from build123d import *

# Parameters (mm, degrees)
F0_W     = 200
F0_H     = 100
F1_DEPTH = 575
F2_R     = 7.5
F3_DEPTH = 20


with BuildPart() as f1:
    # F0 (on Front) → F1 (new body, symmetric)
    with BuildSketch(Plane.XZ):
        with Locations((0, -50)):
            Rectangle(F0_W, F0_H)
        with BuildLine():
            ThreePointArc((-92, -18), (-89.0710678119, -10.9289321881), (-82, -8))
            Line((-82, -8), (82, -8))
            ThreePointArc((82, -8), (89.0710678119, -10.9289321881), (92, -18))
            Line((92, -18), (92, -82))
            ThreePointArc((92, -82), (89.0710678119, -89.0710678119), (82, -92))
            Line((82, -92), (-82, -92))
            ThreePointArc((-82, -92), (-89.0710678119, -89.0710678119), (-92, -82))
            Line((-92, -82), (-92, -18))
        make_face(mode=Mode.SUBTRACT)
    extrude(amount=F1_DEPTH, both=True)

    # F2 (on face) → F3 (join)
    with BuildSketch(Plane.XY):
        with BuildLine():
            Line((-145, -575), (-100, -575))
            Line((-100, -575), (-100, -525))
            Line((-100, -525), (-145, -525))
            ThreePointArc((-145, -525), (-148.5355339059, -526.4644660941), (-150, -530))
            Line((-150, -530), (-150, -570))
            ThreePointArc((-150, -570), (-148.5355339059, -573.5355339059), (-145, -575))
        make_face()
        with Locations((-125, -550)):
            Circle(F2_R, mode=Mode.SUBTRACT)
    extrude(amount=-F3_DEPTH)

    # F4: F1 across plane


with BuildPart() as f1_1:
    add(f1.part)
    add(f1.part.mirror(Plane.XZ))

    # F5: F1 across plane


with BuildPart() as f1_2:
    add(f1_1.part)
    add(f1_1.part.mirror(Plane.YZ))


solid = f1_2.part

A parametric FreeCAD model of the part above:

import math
import FreeCAD as App
import Part
import Sketcher
from FreeCAD import Vector


def add_polygon(sketch, points):
    """Adds a closed chain of lines whose ends are joined by coincident constraints."""
    first, n = sketch.GeometryCount, len(points)
    for a, b in zip(points, points[1:] + points[:1]):
        sketch.addGeometry(Part.LineSegment(App.Vector(*a, 0), App.Vector(*b, 0)), False)
    for i in range(n):
        sketch.addConstraint(Sketcher.Constraint("Coincident", first + i, 2, first + (i + 1) % n, 1))

doc = App.newDocument("Part")
body = doc.addObject("PartDesign::Body", "Body")

# Sketch on XZ plane
sketch1 = body.newObject("Sketcher::SketchObject", "Sketch")
sketch1.AttachmentSupport = (doc.getObject("XZ_Plane"), [""])
sketch1.MapMode = "FlatFace"
add_polygon(sketch1, [(-100, 0), (-100, -100), (100, -100), (100, 0)])  # lines 0-3
sketch1.addGeometry(Part.LineSegment(Vector(-92, -82, 0), Vector(-92, -18, 0)), False)  # 4
sketch1.addGeometry(Part.ArcOfCircle(Part.Circle(Vector(-82, -18, 0), Vector(0, 0, 1), 10), math.radians(90), math.radians(180)), False)  # 5
sketch1.addGeometry(Part.LineSegment(Vector(-82, -8, 0), Vector(82, -8, 0)), False)  # 6
sketch1.addGeometry(Part.ArcOfCircle(Part.Circle(Vector(82, -18, 0), Vector(0, 0, 1), 10), math.radians(0), math.radians(90)), False)  # 7
sketch1.addGeometry(Part.LineSegment(Vector(92, -18, 0), Vector(92, -82, 0)), False)  # 8
sketch1.addGeometry(Part.ArcOfCircle(Part.Circle(Vector(82, -82, 0), Vector(0, 0, 1), 10), math.radians(-90), math.radians(0)), False)  # 9
sketch1.addGeometry(Part.LineSegment(Vector(82, -92, 0), Vector(-82, -92, 0)), False)  # 10
sketch1.addGeometry(Part.ArcOfCircle(Part.Circle(Vector(-82, -82, 0), Vector(0, 0, 1), 10), math.radians(180), math.radians(270)), False)  # 11
sketch1.addConstraint(Sketcher.Constraint("Tangent", 4, 2, 5, 2))
sketch1.addConstraint(Sketcher.Constraint("Tangent", 5, 1, 6, 1))
sketch1.addConstraint(Sketcher.Constraint("Tangent", 6, 2, 7, 2))
sketch1.addConstraint(Sketcher.Constraint("Tangent", 7, 1, 8, 1))
sketch1.addConstraint(Sketcher.Constraint("Tangent", 8, 2, 9, 2))
sketch1.addConstraint(Sketcher.Constraint("Tangent", 9, 1, 10, 1))
sketch1.addConstraint(Sketcher.Constraint("Tangent", 10, 2, 11, 2))
sketch1.addConstraint(Sketcher.Constraint("Tangent", 11, 1, 4, 1))
sketch1.addConstraint(Sketcher.Constraint("Vertical", 0))
sketch1.addConstraint(Sketcher.Constraint("Horizontal", 1))
sketch1.addConstraint(Sketcher.Constraint("Vertical", 2))
sketch1.addConstraint(Sketcher.Constraint("Horizontal", 3))
sketch1.addConstraint(Sketcher.Constraint("Vertical", 4))
sketch1.addConstraint(Sketcher.Constraint("Horizontal", 6))
sketch1.addConstraint(Sketcher.Constraint("Vertical", 8))
sketch1.addConstraint(Sketcher.Constraint("Horizontal", 10))
sketch1.addConstraint(Sketcher.Constraint("Equal", 5, 7))
sketch1.addConstraint(Sketcher.Constraint("Equal", 7, 9))
sketch1.addConstraint(Sketcher.Constraint("Equal", 9, 11))
sketch1.addConstraint(Sketcher.Constraint("Symmetric", 2, 2, 3, 2, -1, 1))
sketch1.addConstraint(Sketcher.Constraint("Radius", 5, 10.0))
sketch1.addConstraint(Sketcher.Constraint("DistanceX", 1, 1, 1, 2, 200.0))
sketch1.addConstraint(Sketcher.Constraint("DistanceX", 6, 1, 6, 2, 164.0))
sketch1.addConstraint(Sketcher.Constraint("DistanceY", 0, 2, 0, 1, 100.0))
sketch1.addConstraint(Sketcher.Constraint("DistanceY", 4, 1, 4, 2, 64.0))
sketch1.addConstraint(Sketcher.Constraint("DistanceX", 5, 3, -1, 1, 82.0))
sketch1.addConstraint(Sketcher.Constraint("DistanceY", 5, 3, -1, 1, 18.0))
pad1 = body.newObject("PartDesign::Pad", "Pad")
pad1.Profile = sketch1
pad1.Length = 1150
pad1.Midplane = True

# Sketch on XY plane
sketch2 = body.newObject("Sketcher::SketchObject", "Sketch001")
sketch2.AttachmentSupport = (doc.getObject("XY_Plane"), [""])
sketch2.MapMode = "FlatFace"
sketch2.addGeometry(Part.LineSegment(Vector(-145, -575, 0), Vector(-100, -575, 0)), False)
sketch2.addGeometry(Part.LineSegment(Vector(-100, -575, 0), Vector(-100, -525, 0)), False)
sketch2.addGeometry(Part.LineSegment(Vector(-100, -525, 0), Vector(-145, -525, 0)), False)
sketch2.addGeometry(Part.ArcOfCircle(Part.Circle(Vector(-145, -530, 0), Vector(0, 0, 1), 5), math.radians(90), math.radians(180)), False)
sketch2.addGeometry(Part.LineSegment(Vector(-150, -530, 0), Vector(-150, -570, 0)), False)
sketch2.addGeometry(Part.ArcOfCircle(Part.Circle(Vector(-145, -570, 0), Vector(0, 0, 1), 5), math.radians(180), math.radians(270)), False)
sketch2.addGeometry(Part.Circle(Vector(-125, -550, 0), Vector(0, 0, 1), 8), False)
sketch2.addConstraint(Sketcher.Constraint("Coincident", 0, 2, 1, 1))
sketch2.addConstraint(Sketcher.Constraint("Coincident", 1, 2, 2, 1))
sketch2.addConstraint(Sketcher.Constraint("Tangent", 2, 2, 3, 1))
sketch2.addConstraint(Sketcher.Constraint("Tangent", 3, 2, 4, 1))
sketch2.addConstraint(Sketcher.Constraint("Tangent", 4, 2, 5, 1))
sketch2.addConstraint(Sketcher.Constraint("Tangent", 5, 2, 0, 1))
sketch2.addConstraint(Sketcher.Constraint("Horizontal", 0))
sketch2.addConstraint(Sketcher.Constraint("Vertical", 1))
sketch2.addConstraint(Sketcher.Constraint("Horizontal", 2))
sketch2.addConstraint(Sketcher.Constraint("Vertical", 4))
sketch2.addConstraint(Sketcher.Constraint("Equal", 3, 5))
sketch2.addConstraint(Sketcher.Constraint("Diameter", 6, 15.0))
sketch2.addConstraint(Sketcher.Constraint("Radius", 3, 5.0))
sketch2.addConstraint(Sketcher.Constraint("DistanceX", 0, 1, 0, 2, 45.0))
sketch2.addConstraint(Sketcher.Constraint("DistanceY", 1, 1, 1, 2, 50.0))
sketch2.addConstraint(Sketcher.Constraint("DistanceX", 3, 3, -1, 1, 145.0))
sketch2.addConstraint(Sketcher.Constraint("DistanceY", 3, 3, -1, 1, 530.0))
sketch2.addConstraint(Sketcher.Constraint("DistanceX", 6, 3, -1, 1, 125.0))
sketch2.addConstraint(Sketcher.Constraint("DistanceY", 6, 3, -1, 1, 550.0))
pad2 = body.newObject("PartDesign::Pad", "Pad001")
pad2.Profile = sketch2
pad2.Length = 20
pad2.Reversed = True
body2 = doc.addObject("PartDesign::Body", "Body001")
doc.recompute()

body2.BaseFeature = body
doc.recompute()

mirroring = doc.addObject("Part::Mirroring", "Mirroring")
mirroring.Source = body
mirroring.Base = Vector(0, 0, 0)
mirroring.Normal = Vector(0, -1, 0)
body3 = doc.addObject("PartDesign::Body", "Body002")
body3.BaseFeature = mirroring
boolean = body2.newObject("PartDesign::Boolean", "Boolean")
boolean.Type = "Fuse"
boolean.addObjects([body3])
doc.recompute()
body4 = doc.addObject("PartDesign::Body", "Body003")
doc.recompute()

body4.BaseFeature = body2
doc.recompute()

mirroring2 = doc.addObject("Part::Mirroring", "Mirroring001")
mirroring2.Source = body2
mirroring2.Base = Vector(0, 0, 0)
mirroring2.Normal = Vector(1, 0, 0)
body5 = doc.addObject("PartDesign::Body", "Body004")
body5.BaseFeature = mirroring2
boolean2 = body4.newObject("PartDesign::Boolean", "Boolean001")
boolean2.Type = "Fuse"
boolean2.addObjects([body5])
doc.recompute()
mirroring.Visibility = False
mirroring2.Visibility = False

doc.recompute()
